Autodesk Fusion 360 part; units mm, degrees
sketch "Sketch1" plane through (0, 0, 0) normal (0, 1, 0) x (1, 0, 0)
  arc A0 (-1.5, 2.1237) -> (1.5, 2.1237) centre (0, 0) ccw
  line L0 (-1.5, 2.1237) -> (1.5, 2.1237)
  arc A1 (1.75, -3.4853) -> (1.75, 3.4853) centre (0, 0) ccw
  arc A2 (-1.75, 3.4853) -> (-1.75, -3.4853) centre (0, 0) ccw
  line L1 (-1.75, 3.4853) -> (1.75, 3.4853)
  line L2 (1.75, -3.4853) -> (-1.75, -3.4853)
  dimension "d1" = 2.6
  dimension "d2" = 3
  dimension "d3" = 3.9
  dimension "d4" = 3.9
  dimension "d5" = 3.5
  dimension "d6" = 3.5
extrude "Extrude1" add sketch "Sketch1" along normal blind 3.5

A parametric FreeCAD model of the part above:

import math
import FreeCAD as App
import Part
import Sketcher

doc = App.newDocument("Part")
body = doc.addObject("PartDesign::Body", "Body")

# Sketch on XZ plane
sketch1 = body.newObject("Sketcher::SketchObject", "Sketch")
sketch1.AttachmentSupport = (doc.getObject("XZ_Plane"), [""])
sketch1.MapMode = "FlatFace"
sketch1.addGeometry([
    Part.LineSegment(App.Vector(-1.8, 3.5, 0), App.Vector(1.8, 3.5, 0)),  # 0
    Part.ArcOfCircle(Part.Circle(App.Vector(0, 0, 0), App.Vector(0, 0, 1), 3.9), math.radians(-63), math.radians(63)),  # 1
    Part.LineSegment(App.Vector(1.8, -3.5, 0), App.Vector(-1.8, -3.5, 0)),  # 2
    Part.ArcOfCircle(Part.Circle(App.Vector(0, 0, 0), App.Vector(0, 0, 1), 3.9), math.radians(117), math.radians(243)),  # 3
    Part.ArcOfCircle(Part.Circle(App.Vector(0, 0, 0), App.Vector(0, 0, 1), 2.6), math.radians(-55), math.radians(235)),  # 4
    Part.LineSegment(App.Vector(-1.5, -2.1, 0), App.Vector(1.5, -2.1, 0)),  # 5
], False)
sketch1.addConstraint([
    Sketcher.Constraint("Coincident", 0, 2, 1, 2),
    Sketcher.Constraint("Coincident", 1, 1, 2, 1),
    Sketcher.Constraint("Coincident", 2, 2, 3, 2),
    Sketcher.Constraint("Coincident", 3, 1, 0, 1),
    Sketcher.Constraint("Coincident", 4, 1, 5, 2),
    Sketcher.Constraint("Coincident", 5, 1, 4, 2),
    Sketcher.Constraint("Horizontal", 0),
    Sketcher.Constraint("Horizontal", 2),
    Sketcher.Constraint("Horizontal", 5),
    Sketcher.Constraint("Coincident", 1, 3, -1, 1),
    Sketcher.Constraint("Coincident", 3, 3, -1, 1),
    Sketcher.Constraint("Coincident", 4, 3, -1, 1),
    Sketcher.Constraint("Equal", 1, 3),
    Sketcher.Constraint("Vertical", 0, 2, 1, 1),
    Sketcher.Constraint("Radius", 1, 3.9),
    Sketcher.Constraint("Radius", 4, 2.6),
    Sketcher.Constraint("DistanceX", 5, 1, 5, 2, 3.0),
    Sketcher.Constraint("DistanceX", 0, 1, 0, 2, 3.5),
])
pad1 = body.newObject("PartDesign::Pad", "Pad")
pad1.Profile = sketch1
pad1.Length = 3.5
pad1.Reversed = True

doc.recompute()
